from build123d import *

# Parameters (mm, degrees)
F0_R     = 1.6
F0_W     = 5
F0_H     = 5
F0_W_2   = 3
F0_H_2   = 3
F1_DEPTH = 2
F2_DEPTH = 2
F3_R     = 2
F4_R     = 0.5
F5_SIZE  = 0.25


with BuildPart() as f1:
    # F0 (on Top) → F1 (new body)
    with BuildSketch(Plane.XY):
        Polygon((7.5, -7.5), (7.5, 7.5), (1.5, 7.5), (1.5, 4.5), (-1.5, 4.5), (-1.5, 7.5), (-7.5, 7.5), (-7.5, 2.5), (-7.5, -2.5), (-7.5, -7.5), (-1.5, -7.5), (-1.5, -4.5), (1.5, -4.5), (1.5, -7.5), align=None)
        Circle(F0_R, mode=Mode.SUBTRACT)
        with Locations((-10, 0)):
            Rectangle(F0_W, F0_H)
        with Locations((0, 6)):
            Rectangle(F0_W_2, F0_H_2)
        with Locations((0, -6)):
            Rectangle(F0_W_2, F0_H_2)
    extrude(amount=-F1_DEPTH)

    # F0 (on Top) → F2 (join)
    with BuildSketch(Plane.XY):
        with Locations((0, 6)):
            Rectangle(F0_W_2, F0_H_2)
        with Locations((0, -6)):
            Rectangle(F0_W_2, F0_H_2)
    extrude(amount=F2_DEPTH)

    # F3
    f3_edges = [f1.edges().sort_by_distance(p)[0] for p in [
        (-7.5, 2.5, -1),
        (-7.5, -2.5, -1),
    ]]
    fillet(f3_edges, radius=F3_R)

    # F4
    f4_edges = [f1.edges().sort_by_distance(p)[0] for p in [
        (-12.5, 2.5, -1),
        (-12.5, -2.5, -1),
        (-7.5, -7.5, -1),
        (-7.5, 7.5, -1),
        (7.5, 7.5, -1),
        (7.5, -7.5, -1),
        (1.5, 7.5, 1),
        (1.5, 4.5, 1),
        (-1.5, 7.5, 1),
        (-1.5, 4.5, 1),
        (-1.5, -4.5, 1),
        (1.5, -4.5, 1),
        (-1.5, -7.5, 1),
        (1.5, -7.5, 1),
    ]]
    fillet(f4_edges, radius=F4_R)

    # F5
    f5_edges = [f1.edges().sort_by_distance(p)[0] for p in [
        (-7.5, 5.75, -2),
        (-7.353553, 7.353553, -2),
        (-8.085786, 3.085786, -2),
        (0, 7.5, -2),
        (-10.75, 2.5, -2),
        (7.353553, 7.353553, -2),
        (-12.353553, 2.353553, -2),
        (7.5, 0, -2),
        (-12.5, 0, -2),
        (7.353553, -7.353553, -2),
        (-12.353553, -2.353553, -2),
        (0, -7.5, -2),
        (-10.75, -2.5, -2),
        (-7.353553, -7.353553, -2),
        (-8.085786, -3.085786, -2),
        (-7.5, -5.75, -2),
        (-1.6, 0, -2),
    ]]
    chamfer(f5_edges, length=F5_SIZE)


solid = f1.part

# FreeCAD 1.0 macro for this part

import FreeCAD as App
import Part
import Sketcher


def edges_at(feature, points):
    """Names of the edges that pass closest to the given points."""
    edges = feature.Shape.Edges
    near = lambda p: min(range(len(edges)), key=lambda i: edges[i].distToShape(Part.Vertex(*p))[0])
    return sorted({f"Edge{near(p) + 1}" for p in points})

doc = App.newDocument("Part")
body = doc.addObject("PartDesign::Body", "Body")

# Sketch on XY plane
sketch1 = body.newObject("Sketcher::SketchObject", "Sketch")
sketch1.AttachmentSupport = (doc.getObject("XY_Plane"), [""])
sketch1.MapMode = "FlatFace"
sketch1.addGeometry(Part.LineSegment(App.Vector(7.5, -7.5, 0), App.Vector(7.5, 7.5, 0)), False)
sketch1.addGeometry(Part.LineSegment(App.Vector(7.5, 7.5, 0), App.Vector(-7.5, 7.5, 0)), False)
sketch1.addGeometry(Part.LineSegment(App.Vector(-7.5, 7.5, 0), App.Vector(-7.5, 2.5, 0)), False)
sketch1.addGeometry(Part.LineSegment(App.Vector(-7.5, 2.5, 0), App.Vector(-12.5, 2.5, 0)), False)
sketch1.addGeometry(Part.LineSegment(App.Vector(-12.5, 2.5, 0), App.Vector(-12.5, -2.5, 0)), False)
sketch1.addGeometry(Part.LineSegment(App.Vector(-12.5, -2.5, 0), App.Vector(-7.5, -2.5, 0)), False)
sketch1.addGeometry(Part.LineSegment(App.Vector(-7.5, -2.5, 0), App.Vector(-7.5, -7.5, 0)), False)
sketch1.addGeometry(Part.LineSegment(App.Vector(-7.5, -7.5, 0), App.Vector(7.5, -7.5, 0)), False)
sketch1.addGeometry(Part.Circle(App.Vector(0, 0, 0), App.Vector(0, 0, 1), 1.6), False)
sketch1.addConstraint(Sketcher.Constraint("Coincident", 0, 2, 1, 1))
sketch1.addConstraint(Sketcher.Constraint("Coincident", 1, 2, 2, 1))
sketch1.addConstraint(Sketcher.Constraint("Coincident", 2, 2, 3, 1))
sketch1.addConstraint(Sketcher.Constraint("Coincident", 3, 2, 4, 1))
sketch1.addConstraint(Sketcher.Constraint("Coincident", 4, 2, 5, 1))
sketch1.addConstraint(Sketcher.Constraint("Coincident", 5, 2, 6, 1))
sketch1.addConstraint(Sketcher.Constraint("Coincident", 6, 2, 7, 1))
sketch1.addConstraint(Sketcher.Constraint("Coincident", 7, 2, 0, 1))
sketch1.addConstraint(Sketcher.Constraint("Vertical", 0))
sketch1.addConstraint(Sketcher.Constraint("Horizontal", 1))
sketch1.addConstraint(Sketcher.Constraint("Vertical", 2))
sketch1.addConstraint(Sketcher.Constraint("Horizontal", 3))
sketch1.addConstraint(Sketcher.Constraint("Vertical", 4))
sketch1.addConstraint(Sketcher.Constraint("Horizontal", 5))
sketch1.addConstraint(Sketcher.Constraint("Vertical", 6))
sketch1.addConstraint(Sketcher.Constraint("Horizontal", 7))
sketch1.addConstraint(Sketcher.Constraint("Coincident", 8, 3, -1, 1))
sketch1.addConstraint(Sketcher.Constraint("Symmetric", 0, 2, 6, 2, -1, 1))
sketch1.addConstraint(Sketcher.Constraint("Symmetric", 2, 2, 5, 2, -1))
sketch1.addConstraint(Sketcher.Constraint("Equal", 7, 0))
sketch1.addConstraint(Sketcher.Constraint("Equal", 5, 2))
sketch1.addConstraint(Sketcher.Constraint("Equal", 2, 4))
sketch1.addConstraint(Sketcher.Constraint("Diameter", 8, 3.2))
sketch1.addConstraint(Sketcher.Constraint("DistanceX", 1, 2, 1, 1, 15.0))
pad1 = body.newObject("PartDesign::Pad", "Pad")
pad1.Profile = sketch1
pad1.Length = 2
pad1.Reversed = True

# Sketch on XY plane
sketch2 = body.newObject("Sketcher::SketchObject", "Sketch001")
sketch2.AttachmentSupport = (doc.getObject("XY_Plane"), [""])
sketch2.MapMode = "FlatFace"
sketch2.addGeometry(Part.LineSegment(App.Vector(-1.5, 7.5, 0), App.Vector(-1.5, 4.5, 0)), False)
sketch2.addGeometry(Part.LineSegment(App.Vector(-1.5, 4.5, 0), App.Vector(1.5, 4.5, 0)), False)
sketch2.addGeometry(Part.LineSegment(App.Vector(1.5, 4.5, 0), App.Vector(1.5, 7.5, 0)), False)
sketch2.addGeometry(Part.LineSegment(App.Vector(1.5, 7.5, 0), App.Vector(-1.5, 7.5, 0)), False)
sketch2.addGeometry(Part.LineSegment(App.Vector(-1.5, -4.5, 0), App.Vector(-1.5, -7.5, 0)), False)
sketch2.addGeometry(Part.LineSegment(App.Vector(-1.5, -7.5, 0), App.Vector(1.5, -7.5, 0)), False)
sketch2.addGeometry(Part.LineSegment(App.Vector(1.5, -7.5, 0), App.Vector(1.5, -4.5, 0)), False)
sketch2.addGeometry(Part.LineSegment(App.Vector(1.5, -4.5, 0), App.Vector(-1.5, -4.5, 0)), False)
sketch2.addConstraint(Sketcher.Constraint("Coincident", 0, 2, 1, 1))
sketch2.addConstraint(Sketcher.Constraint("Coincident", 1, 2, 2, 1))
sketch2.addConstraint(Sketcher.Constraint("Coincident", 2, 2, 3, 1))
sketch2.addConstraint(Sketcher.Constraint("Coincident", 3, 2, 0, 1))
sketch2.addConstraint(Sketcher.Constraint("Coincident", 4, 2, 5, 1))
sketch2.addConstraint(Sketcher.Constraint("Coincident", 5, 2, 6, 1))
sketch2.addConstraint(Sketcher.Constraint("Coincident", 6, 2, 7, 1))
sketch2.addConstraint(Sketcher.Constraint("Coincident", 7, 2, 4, 1))
sketch2.addConstraint(Sketcher.Constraint("Vertical", 0))
sketch2.addConstraint(Sketcher.Constraint("Horizontal", 1))
sketch2.addConstraint(Sketcher.Constraint("Vertical", 2))
sketch2.addConstraint(Sketcher.Constraint("Horizontal", 3))
sketch2.addConstraint(Sketcher.Constraint("Vertical", 4))
sketch2.addConstraint(Sketcher.Constraint("Horizontal", 5))
sketch2.addConstraint(Sketcher.Constraint("Vertical", 6))
sketch2.addConstraint(Sketcher.Constraint("Horizontal", 7))
sketch2.addConstraint(Sketcher.Constraint("Symmetric", 2, 2, 4, 2, -1, 1))
sketch2.addConstraint(Sketcher.Constraint("Symmetric", 0, 2, 6, 2, -1, 1))
sketch2.addConstraint(Sketcher.Constraint("Vertical", 3, 2, 4, 2))
sketch2.addConstraint(Sketcher.Constraint("Equal", 7, 0))
sketch2.addConstraint(Sketcher.Constraint("DistanceX", 1, 1, 1, 2, 3.0))
sketch2.addConstraint(Sketcher.Constraint("DistanceY", 4, 2, 0, 2, 12.0))
pad2 = body.newObject("PartDesign::Pad", "Pad001")
pad2.Profile = sketch2
pad2.Length = 2
doc.recompute()

fillet = body.newObject("PartDesign::Fillet", "Fillet")
fillet.Base = (pad2, edges_at(pad2, [(-7.5, 2.5, -1), (-7.5, -2.5, -1)]))
fillet.Radius = 2
doc.recompute()

fillet2 = body.newObject("PartDesign::Fillet", "Fillet001")
fillet2.Base = (fillet, edges_at(fillet, [
    (-12.5, 2.5, -1),
    (-12.5, -2.5, -1),
    (-7.5, -7.5, -1),
    (-7.5, 7.5, -1),
    (7.5, 7.5, -1),
    (7.5, -7.5, -1),
    (1.5, 7.5, 1),
    (1.5, 4.5, 1),
    (-1.5, 7.5, 1),
    (-1.5, 4.5, 1),
    (-1.5, -4.5, 1),
    (1.5, -4.5, 1),
    (-1.5, -7.5, 1),
    (1.5, -7.5, 1),
]))
fillet2.Radius = 0.5
doc.recompute()

chamfer = body.newObject("PartDesign::Chamfer", "Chamfer")
chamfer.Base = (fillet2, edges_at(fillet2, [
    (-7.5, 5.75, -2),
    (-7.354, 7.354, -2),
    (-8.086, 3.086, -2),
    (0, 7.5, -2),
    (-10.75, 2.5, -2),
    (7.354, 7.354, -2),
    (-12.354, 2.354, -2),
    (7.5, 0, -2),
    (-12.5, 0, -2),
    (7.354, -7.354, -2),
    (-12.354, -2.354, -2),
    (0, -7.5, -2),
    (-10.75, -2.5, -2),
    (-7.354, -7.354, -2),
    (-8.086, -3.086, -2),
    (-7.5, -5.75, -2),
    (-1.6, 0, -2),
]))
chamfer.Size = 0.25

doc.recompute()
